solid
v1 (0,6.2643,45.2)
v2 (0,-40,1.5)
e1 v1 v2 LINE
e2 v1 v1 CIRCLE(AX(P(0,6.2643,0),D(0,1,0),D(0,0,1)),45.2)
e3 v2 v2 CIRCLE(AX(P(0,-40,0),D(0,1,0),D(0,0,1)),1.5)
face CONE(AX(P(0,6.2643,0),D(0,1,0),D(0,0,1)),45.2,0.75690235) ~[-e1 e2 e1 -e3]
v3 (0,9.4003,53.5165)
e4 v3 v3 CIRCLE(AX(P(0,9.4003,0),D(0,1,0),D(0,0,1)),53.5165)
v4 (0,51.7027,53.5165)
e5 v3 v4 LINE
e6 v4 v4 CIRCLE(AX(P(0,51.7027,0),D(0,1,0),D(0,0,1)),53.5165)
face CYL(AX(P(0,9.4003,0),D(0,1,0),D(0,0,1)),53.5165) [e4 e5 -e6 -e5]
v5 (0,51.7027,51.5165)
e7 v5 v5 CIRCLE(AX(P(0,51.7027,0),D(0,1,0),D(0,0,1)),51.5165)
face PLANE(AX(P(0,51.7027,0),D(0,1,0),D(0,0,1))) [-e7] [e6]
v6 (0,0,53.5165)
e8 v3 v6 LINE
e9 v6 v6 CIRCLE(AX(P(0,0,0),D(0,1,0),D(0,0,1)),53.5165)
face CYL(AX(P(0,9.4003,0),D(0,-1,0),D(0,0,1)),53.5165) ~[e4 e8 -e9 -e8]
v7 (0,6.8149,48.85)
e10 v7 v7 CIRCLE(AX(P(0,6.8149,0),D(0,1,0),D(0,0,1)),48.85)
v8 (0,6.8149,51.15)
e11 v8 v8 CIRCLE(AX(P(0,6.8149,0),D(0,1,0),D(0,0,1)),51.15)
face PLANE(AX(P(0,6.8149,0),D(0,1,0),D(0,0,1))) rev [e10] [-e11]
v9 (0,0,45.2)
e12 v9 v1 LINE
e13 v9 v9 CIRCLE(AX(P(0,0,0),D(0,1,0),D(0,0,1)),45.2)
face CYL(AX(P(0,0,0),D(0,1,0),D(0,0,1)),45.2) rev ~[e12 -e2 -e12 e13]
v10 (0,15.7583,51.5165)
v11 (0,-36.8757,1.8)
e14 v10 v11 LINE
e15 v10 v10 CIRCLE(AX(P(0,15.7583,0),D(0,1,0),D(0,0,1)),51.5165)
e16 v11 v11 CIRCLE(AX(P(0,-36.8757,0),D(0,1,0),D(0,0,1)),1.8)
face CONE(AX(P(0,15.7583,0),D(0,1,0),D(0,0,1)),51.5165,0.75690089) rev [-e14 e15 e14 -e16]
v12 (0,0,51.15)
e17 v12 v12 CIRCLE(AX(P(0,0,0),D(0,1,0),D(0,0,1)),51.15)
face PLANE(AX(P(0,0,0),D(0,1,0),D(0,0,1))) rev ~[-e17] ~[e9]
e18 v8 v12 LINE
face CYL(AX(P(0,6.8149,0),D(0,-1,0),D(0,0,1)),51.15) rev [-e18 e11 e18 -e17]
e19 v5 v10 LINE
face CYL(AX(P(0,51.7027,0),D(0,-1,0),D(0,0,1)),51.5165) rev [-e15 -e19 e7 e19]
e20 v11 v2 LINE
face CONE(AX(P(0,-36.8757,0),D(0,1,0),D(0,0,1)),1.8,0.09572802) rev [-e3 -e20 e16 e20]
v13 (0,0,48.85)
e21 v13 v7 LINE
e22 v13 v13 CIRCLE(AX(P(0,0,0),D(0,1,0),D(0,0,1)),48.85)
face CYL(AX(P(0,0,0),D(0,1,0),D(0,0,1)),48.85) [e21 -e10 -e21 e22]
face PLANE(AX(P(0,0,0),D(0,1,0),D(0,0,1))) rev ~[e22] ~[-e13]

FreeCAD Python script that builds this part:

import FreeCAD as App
import Part
import Sketcher


def add_polygon(sketch, points):
    """Adds a closed chain of lines whose ends are joined by coincident constraints."""
    first, n = sketch.GeometryCount, len(points)
    for a, b in zip(points, points[1:] + points[:1]):
        sketch.addGeometry(Part.LineSegment(App.Vector(*a, 0), App.Vector(*b, 0)), False)
    for i in range(n):
        sketch.addConstraint(Sketcher.Constraint("Coincident", first + i, 2, first + (i + 1) % n, 1))

doc = App.newDocument("Part")
body = doc.addObject("PartDesign::Body", "Body")

sketch1 = body.newObject("Sketcher::SketchObject", "Sketch")
sketch1.AttachmentSupport = (doc.getObject("YZ_Plane"), [""])
sketch1.MapMode = "FlatFace"
add_polygon(sketch1, [(51.7027, 53.5165), (0, 53.5165), (0, 51.15), (6.8149, 51.15), (6.8149, 48.85), (0, 48.85), (0, 45.2), (6.2643, 45.2), (-40, 1.5), (-36.8757, 1.8), (15.7583, 51.5165), (51.7027, 51.5165)])
sketch1.addConstraint([
    Sketcher.Constraint("Horizontal", 0),
    Sketcher.Constraint("Vertical", 1),
    Sketcher.Constraint("Horizontal", 2),
    Sketcher.Constraint("Vertical", 3),
    Sketcher.Constraint("Horizontal", 4),
    Sketcher.Constraint("Vertical", 5),
    Sketcher.Constraint("Horizontal", 6),
    Sketcher.Constraint("Horizontal", 10),
    Sketcher.Constraint("Vertical", 11),
    Sketcher.Constraint("PointOnObject", 0, 2, -2),
    Sketcher.Constraint("PointOnObject", 4, 2, -2),
    Sketcher.Constraint("Parallel", 7, 9),
    Sketcher.Constraint("DistanceY", 11, 1, 11, 2, 2.0),
    Sketcher.Constraint("DistanceY", -1, 1, 7, 2, 1.5),
    Sketcher.Constraint("DistanceY", -1, 1, 8, 2, 1.8),
    Sketcher.Constraint("DistanceY", 3, 2, 3, 1, 2.3),
    Sketcher.Constraint("DistanceX", 7, 2, -1, 1, 40.0),
    Sketcher.Constraint("DistanceY", 5, 2, 5, 1, 3.65),
    Sketcher.Constraint("DistanceY", -1, 1, 5, 2, 45.2),
    Sketcher.Constraint("DistanceX", 2, 1, 2, 2, 6.815),
    Sketcher.Constraint("DistanceX", 8, 2, 6, 2, 43.14),
    Sketcher.Constraint("DistanceX", 0, 2, 0, 1, 51.7027),
    Sketcher.Constraint("DistanceX", 6, 1, 6, 2, 6.2643),
    Sketcher.Constraint("DistanceX", 10, 1, 10, 2, 35.9444),
])
revolution = body.newObject("PartDesign::Revolution", "Revolution")
revolution.Profile = sketch1
revolution.ReferenceAxis = (sketch1, ["H_Axis"])
revolution.Angle = 360

doc.recompute()
